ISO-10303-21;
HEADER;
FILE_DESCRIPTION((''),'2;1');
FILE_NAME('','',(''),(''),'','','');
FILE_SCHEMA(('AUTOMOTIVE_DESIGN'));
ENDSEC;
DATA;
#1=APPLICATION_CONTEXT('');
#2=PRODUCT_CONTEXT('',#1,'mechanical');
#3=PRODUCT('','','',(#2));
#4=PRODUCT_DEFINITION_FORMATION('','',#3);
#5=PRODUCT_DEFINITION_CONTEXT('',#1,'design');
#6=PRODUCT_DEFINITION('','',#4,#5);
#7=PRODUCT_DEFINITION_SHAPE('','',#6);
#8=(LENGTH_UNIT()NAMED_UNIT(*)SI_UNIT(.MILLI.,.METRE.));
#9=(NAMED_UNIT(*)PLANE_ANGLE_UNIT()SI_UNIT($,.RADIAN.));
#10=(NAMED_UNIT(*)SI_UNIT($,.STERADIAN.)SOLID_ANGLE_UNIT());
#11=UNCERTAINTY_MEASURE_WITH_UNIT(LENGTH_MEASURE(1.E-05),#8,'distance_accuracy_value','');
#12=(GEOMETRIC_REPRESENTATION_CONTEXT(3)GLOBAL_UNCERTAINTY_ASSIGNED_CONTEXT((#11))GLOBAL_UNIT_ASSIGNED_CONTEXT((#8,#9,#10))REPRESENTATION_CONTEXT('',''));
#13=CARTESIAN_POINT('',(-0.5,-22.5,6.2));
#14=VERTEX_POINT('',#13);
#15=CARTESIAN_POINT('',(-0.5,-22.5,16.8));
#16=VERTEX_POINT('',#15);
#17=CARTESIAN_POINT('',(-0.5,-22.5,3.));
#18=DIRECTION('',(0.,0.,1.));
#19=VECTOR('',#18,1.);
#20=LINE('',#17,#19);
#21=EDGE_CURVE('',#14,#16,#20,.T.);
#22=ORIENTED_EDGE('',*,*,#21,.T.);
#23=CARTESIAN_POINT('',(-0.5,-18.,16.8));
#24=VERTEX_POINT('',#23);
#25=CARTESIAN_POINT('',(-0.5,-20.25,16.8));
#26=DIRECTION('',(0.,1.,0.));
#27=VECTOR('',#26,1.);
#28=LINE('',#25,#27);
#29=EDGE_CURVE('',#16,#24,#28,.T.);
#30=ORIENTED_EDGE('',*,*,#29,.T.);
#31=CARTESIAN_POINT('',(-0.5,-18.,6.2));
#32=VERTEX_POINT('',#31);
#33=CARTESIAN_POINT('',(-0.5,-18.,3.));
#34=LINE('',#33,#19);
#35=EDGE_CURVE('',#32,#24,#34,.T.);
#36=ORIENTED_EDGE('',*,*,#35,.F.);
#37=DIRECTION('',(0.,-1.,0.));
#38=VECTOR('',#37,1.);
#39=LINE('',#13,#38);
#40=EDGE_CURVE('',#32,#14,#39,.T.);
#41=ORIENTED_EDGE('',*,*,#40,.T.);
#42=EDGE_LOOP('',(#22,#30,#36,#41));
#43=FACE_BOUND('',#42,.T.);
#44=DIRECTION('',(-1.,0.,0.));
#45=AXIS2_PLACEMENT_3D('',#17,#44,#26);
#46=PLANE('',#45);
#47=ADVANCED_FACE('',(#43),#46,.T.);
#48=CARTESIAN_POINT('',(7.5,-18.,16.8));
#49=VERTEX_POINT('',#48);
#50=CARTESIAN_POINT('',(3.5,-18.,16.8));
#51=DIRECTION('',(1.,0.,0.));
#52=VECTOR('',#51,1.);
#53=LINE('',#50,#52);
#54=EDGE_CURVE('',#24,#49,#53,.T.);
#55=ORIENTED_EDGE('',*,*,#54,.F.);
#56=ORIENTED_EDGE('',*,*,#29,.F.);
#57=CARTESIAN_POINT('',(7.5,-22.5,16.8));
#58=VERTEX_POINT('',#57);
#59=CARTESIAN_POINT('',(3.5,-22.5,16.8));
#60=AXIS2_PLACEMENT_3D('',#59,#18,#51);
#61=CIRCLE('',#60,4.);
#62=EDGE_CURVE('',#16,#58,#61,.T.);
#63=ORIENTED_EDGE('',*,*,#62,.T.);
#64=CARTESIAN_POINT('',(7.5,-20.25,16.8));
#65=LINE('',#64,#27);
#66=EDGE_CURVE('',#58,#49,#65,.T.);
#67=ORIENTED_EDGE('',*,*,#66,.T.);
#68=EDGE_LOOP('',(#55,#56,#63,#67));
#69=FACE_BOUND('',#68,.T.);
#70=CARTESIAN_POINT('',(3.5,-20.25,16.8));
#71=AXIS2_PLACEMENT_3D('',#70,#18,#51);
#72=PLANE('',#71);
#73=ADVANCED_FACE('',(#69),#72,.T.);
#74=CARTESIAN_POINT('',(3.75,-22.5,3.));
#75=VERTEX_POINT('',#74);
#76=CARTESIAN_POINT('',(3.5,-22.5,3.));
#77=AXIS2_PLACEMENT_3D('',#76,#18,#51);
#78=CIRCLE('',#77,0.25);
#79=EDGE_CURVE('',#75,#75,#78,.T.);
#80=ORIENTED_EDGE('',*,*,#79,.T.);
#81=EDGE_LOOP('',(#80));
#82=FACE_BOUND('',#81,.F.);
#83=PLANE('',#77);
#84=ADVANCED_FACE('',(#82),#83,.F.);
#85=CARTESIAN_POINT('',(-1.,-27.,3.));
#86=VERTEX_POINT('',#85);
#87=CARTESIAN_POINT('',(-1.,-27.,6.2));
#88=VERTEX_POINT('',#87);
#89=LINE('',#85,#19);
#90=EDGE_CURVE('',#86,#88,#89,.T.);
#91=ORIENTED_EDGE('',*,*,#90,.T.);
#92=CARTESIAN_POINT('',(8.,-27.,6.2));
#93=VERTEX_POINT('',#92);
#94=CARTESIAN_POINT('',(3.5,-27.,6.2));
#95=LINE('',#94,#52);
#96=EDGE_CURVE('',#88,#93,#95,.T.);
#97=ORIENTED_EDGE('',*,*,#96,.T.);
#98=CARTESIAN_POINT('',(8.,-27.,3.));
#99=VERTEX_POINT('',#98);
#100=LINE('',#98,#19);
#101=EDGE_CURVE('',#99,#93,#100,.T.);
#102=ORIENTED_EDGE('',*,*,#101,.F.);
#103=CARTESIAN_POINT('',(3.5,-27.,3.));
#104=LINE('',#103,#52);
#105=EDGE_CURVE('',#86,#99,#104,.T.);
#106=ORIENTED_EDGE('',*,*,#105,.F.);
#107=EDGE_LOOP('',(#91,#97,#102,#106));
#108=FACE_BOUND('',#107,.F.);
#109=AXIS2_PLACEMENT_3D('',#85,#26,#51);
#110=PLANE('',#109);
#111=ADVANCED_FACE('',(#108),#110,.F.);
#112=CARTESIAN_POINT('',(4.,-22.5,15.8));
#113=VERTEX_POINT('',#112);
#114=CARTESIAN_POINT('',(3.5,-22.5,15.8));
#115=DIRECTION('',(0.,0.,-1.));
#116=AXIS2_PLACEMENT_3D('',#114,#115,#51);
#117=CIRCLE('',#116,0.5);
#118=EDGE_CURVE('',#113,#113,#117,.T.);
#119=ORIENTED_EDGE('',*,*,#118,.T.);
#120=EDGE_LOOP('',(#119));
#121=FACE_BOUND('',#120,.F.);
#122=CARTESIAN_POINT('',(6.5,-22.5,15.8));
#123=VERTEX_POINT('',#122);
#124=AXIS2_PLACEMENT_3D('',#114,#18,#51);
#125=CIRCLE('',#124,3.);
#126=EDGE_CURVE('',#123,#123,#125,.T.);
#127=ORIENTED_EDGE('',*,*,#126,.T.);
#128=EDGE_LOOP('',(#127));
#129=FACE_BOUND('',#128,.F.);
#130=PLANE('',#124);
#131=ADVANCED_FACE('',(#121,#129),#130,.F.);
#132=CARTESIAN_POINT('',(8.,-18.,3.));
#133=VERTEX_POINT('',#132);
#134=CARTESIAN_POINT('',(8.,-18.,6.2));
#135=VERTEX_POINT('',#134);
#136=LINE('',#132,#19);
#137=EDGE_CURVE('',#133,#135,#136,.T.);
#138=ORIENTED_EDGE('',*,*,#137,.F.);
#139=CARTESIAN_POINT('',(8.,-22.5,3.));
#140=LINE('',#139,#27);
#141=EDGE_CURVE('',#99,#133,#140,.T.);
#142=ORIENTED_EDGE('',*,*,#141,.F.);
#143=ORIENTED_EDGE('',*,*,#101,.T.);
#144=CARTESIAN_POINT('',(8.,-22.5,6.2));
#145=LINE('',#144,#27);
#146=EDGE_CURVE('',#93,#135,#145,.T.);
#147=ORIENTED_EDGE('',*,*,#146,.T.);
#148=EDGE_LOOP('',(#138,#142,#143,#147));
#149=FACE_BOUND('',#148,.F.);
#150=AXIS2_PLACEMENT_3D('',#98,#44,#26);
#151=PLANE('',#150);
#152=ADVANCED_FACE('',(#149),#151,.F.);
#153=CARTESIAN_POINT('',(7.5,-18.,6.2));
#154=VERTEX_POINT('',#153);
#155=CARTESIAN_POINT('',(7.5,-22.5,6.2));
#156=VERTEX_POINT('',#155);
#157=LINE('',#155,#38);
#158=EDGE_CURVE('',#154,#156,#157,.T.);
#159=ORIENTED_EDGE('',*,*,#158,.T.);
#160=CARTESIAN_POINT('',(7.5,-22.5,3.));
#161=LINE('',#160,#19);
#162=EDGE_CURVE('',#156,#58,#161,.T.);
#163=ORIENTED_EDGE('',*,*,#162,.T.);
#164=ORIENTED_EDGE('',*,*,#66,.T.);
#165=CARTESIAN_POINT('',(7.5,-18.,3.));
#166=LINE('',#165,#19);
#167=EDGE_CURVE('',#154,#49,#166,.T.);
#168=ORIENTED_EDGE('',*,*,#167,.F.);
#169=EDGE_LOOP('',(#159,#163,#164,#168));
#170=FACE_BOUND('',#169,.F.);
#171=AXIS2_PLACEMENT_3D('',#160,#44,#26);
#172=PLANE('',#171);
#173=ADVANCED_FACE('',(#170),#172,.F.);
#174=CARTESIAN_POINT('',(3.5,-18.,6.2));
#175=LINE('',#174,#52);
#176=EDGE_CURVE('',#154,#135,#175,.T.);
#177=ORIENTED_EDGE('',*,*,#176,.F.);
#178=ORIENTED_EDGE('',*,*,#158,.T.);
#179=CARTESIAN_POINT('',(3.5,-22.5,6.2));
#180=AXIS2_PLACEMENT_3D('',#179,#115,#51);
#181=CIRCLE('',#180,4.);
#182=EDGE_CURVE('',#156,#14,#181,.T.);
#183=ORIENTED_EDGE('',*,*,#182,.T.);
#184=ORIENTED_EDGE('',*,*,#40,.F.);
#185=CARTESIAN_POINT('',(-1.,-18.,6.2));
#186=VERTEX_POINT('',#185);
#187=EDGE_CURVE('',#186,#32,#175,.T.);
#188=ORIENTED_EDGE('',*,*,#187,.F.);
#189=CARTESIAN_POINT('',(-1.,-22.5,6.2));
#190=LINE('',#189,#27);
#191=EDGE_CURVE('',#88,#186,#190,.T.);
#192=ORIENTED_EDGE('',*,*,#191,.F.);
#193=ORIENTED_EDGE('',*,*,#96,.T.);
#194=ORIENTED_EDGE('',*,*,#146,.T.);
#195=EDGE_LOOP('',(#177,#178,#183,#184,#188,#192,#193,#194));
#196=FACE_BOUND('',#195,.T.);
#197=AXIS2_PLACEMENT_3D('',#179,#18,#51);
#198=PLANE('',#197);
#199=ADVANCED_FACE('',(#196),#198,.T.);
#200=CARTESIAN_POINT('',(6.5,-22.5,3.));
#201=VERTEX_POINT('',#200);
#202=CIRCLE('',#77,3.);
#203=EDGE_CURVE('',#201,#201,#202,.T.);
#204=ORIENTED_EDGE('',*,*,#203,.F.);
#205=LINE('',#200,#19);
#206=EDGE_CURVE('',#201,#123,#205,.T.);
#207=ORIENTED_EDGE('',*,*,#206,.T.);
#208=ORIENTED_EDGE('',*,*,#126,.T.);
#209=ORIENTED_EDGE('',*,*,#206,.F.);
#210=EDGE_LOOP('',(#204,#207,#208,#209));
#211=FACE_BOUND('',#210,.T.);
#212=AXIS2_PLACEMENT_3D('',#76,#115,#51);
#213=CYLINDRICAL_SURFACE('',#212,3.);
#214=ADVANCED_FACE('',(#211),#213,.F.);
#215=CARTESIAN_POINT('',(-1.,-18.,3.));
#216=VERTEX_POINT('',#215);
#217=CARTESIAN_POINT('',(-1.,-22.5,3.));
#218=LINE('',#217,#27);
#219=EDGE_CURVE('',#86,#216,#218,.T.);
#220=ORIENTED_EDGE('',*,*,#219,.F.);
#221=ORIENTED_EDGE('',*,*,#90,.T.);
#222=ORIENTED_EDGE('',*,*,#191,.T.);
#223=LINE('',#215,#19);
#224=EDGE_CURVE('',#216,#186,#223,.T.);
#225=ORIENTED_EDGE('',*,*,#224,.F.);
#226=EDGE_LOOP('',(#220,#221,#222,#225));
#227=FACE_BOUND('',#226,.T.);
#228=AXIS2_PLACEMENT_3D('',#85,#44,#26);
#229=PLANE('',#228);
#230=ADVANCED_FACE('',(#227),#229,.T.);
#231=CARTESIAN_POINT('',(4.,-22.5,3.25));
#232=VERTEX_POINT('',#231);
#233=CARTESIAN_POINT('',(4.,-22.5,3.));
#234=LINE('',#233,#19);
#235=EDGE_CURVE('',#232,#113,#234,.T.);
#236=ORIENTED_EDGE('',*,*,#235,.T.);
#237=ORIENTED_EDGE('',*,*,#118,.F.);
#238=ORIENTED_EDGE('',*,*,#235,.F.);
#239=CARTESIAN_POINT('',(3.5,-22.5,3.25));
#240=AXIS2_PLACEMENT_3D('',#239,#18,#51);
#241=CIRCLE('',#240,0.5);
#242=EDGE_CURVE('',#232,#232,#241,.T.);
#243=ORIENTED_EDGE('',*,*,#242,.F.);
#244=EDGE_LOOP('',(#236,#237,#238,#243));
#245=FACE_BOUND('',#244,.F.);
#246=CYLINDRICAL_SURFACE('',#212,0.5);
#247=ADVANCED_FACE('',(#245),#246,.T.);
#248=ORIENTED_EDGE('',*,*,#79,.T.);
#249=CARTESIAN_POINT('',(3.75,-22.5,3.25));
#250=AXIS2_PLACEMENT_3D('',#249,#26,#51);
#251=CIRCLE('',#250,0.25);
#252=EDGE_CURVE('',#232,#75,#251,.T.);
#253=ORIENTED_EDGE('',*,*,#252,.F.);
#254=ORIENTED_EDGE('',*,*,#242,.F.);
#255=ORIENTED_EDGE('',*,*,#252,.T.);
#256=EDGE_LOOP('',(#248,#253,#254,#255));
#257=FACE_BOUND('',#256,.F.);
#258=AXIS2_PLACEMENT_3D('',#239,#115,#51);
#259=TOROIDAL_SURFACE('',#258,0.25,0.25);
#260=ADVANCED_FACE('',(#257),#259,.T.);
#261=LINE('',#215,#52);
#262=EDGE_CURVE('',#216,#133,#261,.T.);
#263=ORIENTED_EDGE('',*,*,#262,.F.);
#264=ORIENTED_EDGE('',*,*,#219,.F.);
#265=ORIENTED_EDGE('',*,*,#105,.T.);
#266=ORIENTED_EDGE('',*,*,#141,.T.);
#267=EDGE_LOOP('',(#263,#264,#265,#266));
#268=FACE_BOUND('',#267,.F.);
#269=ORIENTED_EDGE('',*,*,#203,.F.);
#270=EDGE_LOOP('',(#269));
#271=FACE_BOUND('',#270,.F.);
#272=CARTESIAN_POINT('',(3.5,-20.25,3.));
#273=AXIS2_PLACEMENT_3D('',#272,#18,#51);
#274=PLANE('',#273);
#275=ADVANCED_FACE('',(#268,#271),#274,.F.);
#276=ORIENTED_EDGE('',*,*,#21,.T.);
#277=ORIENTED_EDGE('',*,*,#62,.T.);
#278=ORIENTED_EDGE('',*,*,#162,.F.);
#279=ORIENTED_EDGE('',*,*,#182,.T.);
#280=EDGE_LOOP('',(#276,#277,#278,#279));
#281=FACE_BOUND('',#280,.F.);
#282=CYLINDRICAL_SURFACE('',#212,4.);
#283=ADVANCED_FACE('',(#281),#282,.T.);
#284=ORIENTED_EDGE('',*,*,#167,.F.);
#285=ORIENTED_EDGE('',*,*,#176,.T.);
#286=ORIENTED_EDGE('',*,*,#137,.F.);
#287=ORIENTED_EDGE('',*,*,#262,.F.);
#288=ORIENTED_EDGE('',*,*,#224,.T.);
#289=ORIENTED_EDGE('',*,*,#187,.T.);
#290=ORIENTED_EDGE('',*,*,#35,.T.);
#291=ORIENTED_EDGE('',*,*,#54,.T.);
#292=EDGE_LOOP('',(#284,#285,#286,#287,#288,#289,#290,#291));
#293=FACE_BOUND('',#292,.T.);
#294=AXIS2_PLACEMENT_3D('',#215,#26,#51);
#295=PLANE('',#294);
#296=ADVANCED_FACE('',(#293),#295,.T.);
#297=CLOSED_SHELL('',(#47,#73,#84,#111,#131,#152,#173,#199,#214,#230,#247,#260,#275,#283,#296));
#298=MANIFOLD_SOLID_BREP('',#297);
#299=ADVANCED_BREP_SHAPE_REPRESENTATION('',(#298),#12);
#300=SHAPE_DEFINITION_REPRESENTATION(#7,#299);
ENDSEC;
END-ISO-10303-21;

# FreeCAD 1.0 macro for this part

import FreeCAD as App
import Part
import Sketcher

V = App.Vector
Q = App.Units.Quantity


def edges_at(feature, points):
    """Names of the edges that pass closest to the given points."""
    edges = feature.Shape.Edges
    near = lambda p: min(range(len(edges)), key=lambda i: edges[i].distToShape(Part.Vertex(*p))[0])
    return sorted({f"Edge{near(p) + 1}" for p in points})


def add_polygon(sketch, points):
    """Adds a closed chain of lines whose ends are joined by coincident constraints."""
    first, n = sketch.GeometryCount, len(points)
    for a, b in zip(points, points[1:] + points[:1]):
        sketch.addGeometry(Part.LineSegment(App.Vector(*a, 0), App.Vector(*b, 0)), False)
    for i in range(n):
        sketch.addConstraint(Sketcher.Constraint("Coincident", first + i, 2, first + (i + 1) % n, 1))

doc = App.newDocument("Part")
body = doc.addObject("PartDesign::Body", "Body")

sketch1 = doc.addObject("Sketcher::SketchObject", "Sketch")
body.addObject(sketch1)
sketch1.AttachmentSupport = (doc.XY_Plane, [""])
sketch1.MapMode = "FlatFace"
sketch1.addGeometry(Part.Circle(V(0, 0, 0), V(0, 0, 1), 0.5), False)
sketch1.addConstraint([
    Sketcher.Constraint("Coincident", 0, 3, -1, 1),
    Sketcher.Constraint("Diameter", 0, Q("1 mm")),
])
pad1 = doc.addObject("PartDesign::Pad", "Pad")
body.addObject(pad1)
pad1.Profile = sketch1
pad1.Length = 13.5
doc.recompute()

fillet = doc.addObject("PartDesign::Fillet", "Fillet")
body.addObject(fillet)
fillet.Base = (pad1, edges_at(pad1, [(-0.5, 0, 0)]))
fillet.Radius = 0.25
body2 = doc.addObject("PartDesign::Body", "Body001")
doc.recompute()

body.Placement = App.Placement(V(4.5, 4.5, 0), App.Rotation(V(0, 0, 1), 0))
boolean = doc.addObject("PartDesign::Boolean", "Boolean")
body2.addObject(boolean)
boolean.Type = "Fuse"
boolean.addObjects([body])
body3 = doc.addObject("PartDesign::Body", "Body002")

sketch2 = doc.addObject("Sketcher::SketchObject", "Sketch001")
body3.addObject(sketch2)
sketch2.AttachmentSupport = (doc.getObject("XY_Plane002"), [""])
sketch2.MapMode = "FlatFace"
sketch2.addGeometry(Part.Circle(V(4.5, 4.5, 0), V(0, 0, 1), 3), False)
sketch2.addConstraint([
    Sketcher.Constraint("Diameter", 0, Q("6 mm")),
    Sketcher.Constraint("DistanceX", -1, 1, 0, 3, Q("4.5 mm")),
    Sketcher.Constraint("DistanceY", -1, 1, 0, 3, Q("4.5 mm")),
])
pad2 = doc.addObject("PartDesign::Pad", "Pad001")
body3.addObject(pad2)
pad2.Profile = sketch2
pad2.Length = 12.8
body4 = doc.addObject("PartDesign::Body", "Body003")

sketch3 = doc.addObject("Sketcher::SketchObject", "Sketch002")
body4.addObject(sketch3)
sketch3.AttachmentSupport = (doc.getObject("XY_Plane003"), [""])
sketch3.MapMode = "FlatFace"
sketch3.addGeometry(Part.Circle(V(4.5, 4.5, 0), V(0, 0, 1), 4), False)
sketch3.addConstraint([
    Sketcher.Constraint("Diameter", 0, Q("8 mm")),
    Sketcher.Constraint("DistanceX", -1, 1, 0, 3, Q("4.5 mm")),
    Sketcher.Constraint("DistanceY", -1, 1, 0, 3, Q("4.5 mm")),
])
pad3 = doc.addObject("PartDesign::Pad", "Pad002")
body4.addObject(pad3)
pad3.Profile = sketch3
pad3.Length = 13.8
body5 = doc.addObject("PartDesign::Body", "Body004")

sketch4 = doc.addObject("Sketcher::SketchObject", "Sketch003")
body5.addObject(sketch4)
sketch4.AttachmentSupport = (doc.getObject("XY_Plane004"), [""])
sketch4.MapMode = "FlatFace"
add_polygon(sketch4, [(0.5, 9), (0.5, 4.5), (8.5, 4.5), (8.5, 9)])
sketch4.addConstraint([
    Sketcher.Constraint("Vertical", 0),
    Sketcher.Constraint("Horizontal", 1),
    Sketcher.Constraint("Vertical", 2),
    Sketcher.Constraint("Horizontal", 3),
    Sketcher.Constraint("DistanceX", 1, 1, 1, 2, Q("8 mm")),
    Sketcher.Constraint("DistanceY", 0, 2, 0, 1, Q("4.5 mm")),
    Sketcher.Constraint("DistanceY", -1, 1, 2, 2, Q("9 mm")),
    Sketcher.Constraint("DistanceX", -1, 1, 0, 2, Q("0.5 mm")),
])
pad4 = doc.addObject("PartDesign::Pad", "Pad003")
body5.addObject(pad4)
pad4.Profile = sketch4
pad4.Length = 13.8
body6 = doc.addObject("PartDesign::Body", "Body005")

sketch5 = doc.addObject("Sketcher::SketchObject", "Sketch004")
body6.addObject(sketch5)
sketch5.AttachmentSupport = (doc.getObject("XY_Plane005"), [""])
sketch5.MapMode = "FlatFace"
add_polygon(sketch5, [(0, 9), (0, 0), (9, 0), (9, 9)])
sketch5.addConstraint([
    Sketcher.Constraint("Vertical", 0),
    Sketcher.Constraint("Horizontal", 1),
    Sketcher.Constraint("Vertical", 2),
    Sketcher.Constraint("Horizontal", 3),
    Sketcher.Constraint("Coincident", 0, 2, -1, 1),
    Sketcher.Constraint("Equal", 3, 0),
    Sketcher.Constraint("DistanceX", 1, 1, 1, 2, Q("9 mm")),
])
pad5 = doc.addObject("PartDesign::Pad", "Pad004")
body6.addObject(pad5)
pad5.Profile = sketch5
pad5.Length = 3.2
doc.recompute()

boolean2 = doc.addObject("PartDesign::Boolean", "Boolean001")
body6.addObject(boolean2)
boolean2.Type = "Fuse"
boolean2.addObjects([body4])
doc.recompute()

boolean3 = doc.addObject("PartDesign::Boolean", "Boolean002")
body6.addObject(boolean3)
boolean3.Type = "Fuse"
boolean3.addObjects([body5])
doc.recompute()

boolean4 = doc.addObject("PartDesign::Boolean", "Boolean003")
body6.addObject(boolean4)
boolean4.Type = "Cut"
boolean4.addObjects([body3])
doc.recompute()

boolean5 = doc.addObject("PartDesign::Boolean", "Boolean004")
body6.addObject(boolean5)
boolean5.Type = "Fuse"
boolean5.addObjects([body2])
body7 = doc.addObject("PartDesign::Body", "Body006")
doc.recompute()

body6.Placement = App.Placement(V(-1, -27, 3), App.Rotation(V(0, 0, 1), 0))
boolean6 = doc.addObject("PartDesign::Boolean", "Boolean005")
body7.addObject(boolean6)
boolean6.Type = "Fuse"
boolean6.addObjects([body6])

doc.recompute()
